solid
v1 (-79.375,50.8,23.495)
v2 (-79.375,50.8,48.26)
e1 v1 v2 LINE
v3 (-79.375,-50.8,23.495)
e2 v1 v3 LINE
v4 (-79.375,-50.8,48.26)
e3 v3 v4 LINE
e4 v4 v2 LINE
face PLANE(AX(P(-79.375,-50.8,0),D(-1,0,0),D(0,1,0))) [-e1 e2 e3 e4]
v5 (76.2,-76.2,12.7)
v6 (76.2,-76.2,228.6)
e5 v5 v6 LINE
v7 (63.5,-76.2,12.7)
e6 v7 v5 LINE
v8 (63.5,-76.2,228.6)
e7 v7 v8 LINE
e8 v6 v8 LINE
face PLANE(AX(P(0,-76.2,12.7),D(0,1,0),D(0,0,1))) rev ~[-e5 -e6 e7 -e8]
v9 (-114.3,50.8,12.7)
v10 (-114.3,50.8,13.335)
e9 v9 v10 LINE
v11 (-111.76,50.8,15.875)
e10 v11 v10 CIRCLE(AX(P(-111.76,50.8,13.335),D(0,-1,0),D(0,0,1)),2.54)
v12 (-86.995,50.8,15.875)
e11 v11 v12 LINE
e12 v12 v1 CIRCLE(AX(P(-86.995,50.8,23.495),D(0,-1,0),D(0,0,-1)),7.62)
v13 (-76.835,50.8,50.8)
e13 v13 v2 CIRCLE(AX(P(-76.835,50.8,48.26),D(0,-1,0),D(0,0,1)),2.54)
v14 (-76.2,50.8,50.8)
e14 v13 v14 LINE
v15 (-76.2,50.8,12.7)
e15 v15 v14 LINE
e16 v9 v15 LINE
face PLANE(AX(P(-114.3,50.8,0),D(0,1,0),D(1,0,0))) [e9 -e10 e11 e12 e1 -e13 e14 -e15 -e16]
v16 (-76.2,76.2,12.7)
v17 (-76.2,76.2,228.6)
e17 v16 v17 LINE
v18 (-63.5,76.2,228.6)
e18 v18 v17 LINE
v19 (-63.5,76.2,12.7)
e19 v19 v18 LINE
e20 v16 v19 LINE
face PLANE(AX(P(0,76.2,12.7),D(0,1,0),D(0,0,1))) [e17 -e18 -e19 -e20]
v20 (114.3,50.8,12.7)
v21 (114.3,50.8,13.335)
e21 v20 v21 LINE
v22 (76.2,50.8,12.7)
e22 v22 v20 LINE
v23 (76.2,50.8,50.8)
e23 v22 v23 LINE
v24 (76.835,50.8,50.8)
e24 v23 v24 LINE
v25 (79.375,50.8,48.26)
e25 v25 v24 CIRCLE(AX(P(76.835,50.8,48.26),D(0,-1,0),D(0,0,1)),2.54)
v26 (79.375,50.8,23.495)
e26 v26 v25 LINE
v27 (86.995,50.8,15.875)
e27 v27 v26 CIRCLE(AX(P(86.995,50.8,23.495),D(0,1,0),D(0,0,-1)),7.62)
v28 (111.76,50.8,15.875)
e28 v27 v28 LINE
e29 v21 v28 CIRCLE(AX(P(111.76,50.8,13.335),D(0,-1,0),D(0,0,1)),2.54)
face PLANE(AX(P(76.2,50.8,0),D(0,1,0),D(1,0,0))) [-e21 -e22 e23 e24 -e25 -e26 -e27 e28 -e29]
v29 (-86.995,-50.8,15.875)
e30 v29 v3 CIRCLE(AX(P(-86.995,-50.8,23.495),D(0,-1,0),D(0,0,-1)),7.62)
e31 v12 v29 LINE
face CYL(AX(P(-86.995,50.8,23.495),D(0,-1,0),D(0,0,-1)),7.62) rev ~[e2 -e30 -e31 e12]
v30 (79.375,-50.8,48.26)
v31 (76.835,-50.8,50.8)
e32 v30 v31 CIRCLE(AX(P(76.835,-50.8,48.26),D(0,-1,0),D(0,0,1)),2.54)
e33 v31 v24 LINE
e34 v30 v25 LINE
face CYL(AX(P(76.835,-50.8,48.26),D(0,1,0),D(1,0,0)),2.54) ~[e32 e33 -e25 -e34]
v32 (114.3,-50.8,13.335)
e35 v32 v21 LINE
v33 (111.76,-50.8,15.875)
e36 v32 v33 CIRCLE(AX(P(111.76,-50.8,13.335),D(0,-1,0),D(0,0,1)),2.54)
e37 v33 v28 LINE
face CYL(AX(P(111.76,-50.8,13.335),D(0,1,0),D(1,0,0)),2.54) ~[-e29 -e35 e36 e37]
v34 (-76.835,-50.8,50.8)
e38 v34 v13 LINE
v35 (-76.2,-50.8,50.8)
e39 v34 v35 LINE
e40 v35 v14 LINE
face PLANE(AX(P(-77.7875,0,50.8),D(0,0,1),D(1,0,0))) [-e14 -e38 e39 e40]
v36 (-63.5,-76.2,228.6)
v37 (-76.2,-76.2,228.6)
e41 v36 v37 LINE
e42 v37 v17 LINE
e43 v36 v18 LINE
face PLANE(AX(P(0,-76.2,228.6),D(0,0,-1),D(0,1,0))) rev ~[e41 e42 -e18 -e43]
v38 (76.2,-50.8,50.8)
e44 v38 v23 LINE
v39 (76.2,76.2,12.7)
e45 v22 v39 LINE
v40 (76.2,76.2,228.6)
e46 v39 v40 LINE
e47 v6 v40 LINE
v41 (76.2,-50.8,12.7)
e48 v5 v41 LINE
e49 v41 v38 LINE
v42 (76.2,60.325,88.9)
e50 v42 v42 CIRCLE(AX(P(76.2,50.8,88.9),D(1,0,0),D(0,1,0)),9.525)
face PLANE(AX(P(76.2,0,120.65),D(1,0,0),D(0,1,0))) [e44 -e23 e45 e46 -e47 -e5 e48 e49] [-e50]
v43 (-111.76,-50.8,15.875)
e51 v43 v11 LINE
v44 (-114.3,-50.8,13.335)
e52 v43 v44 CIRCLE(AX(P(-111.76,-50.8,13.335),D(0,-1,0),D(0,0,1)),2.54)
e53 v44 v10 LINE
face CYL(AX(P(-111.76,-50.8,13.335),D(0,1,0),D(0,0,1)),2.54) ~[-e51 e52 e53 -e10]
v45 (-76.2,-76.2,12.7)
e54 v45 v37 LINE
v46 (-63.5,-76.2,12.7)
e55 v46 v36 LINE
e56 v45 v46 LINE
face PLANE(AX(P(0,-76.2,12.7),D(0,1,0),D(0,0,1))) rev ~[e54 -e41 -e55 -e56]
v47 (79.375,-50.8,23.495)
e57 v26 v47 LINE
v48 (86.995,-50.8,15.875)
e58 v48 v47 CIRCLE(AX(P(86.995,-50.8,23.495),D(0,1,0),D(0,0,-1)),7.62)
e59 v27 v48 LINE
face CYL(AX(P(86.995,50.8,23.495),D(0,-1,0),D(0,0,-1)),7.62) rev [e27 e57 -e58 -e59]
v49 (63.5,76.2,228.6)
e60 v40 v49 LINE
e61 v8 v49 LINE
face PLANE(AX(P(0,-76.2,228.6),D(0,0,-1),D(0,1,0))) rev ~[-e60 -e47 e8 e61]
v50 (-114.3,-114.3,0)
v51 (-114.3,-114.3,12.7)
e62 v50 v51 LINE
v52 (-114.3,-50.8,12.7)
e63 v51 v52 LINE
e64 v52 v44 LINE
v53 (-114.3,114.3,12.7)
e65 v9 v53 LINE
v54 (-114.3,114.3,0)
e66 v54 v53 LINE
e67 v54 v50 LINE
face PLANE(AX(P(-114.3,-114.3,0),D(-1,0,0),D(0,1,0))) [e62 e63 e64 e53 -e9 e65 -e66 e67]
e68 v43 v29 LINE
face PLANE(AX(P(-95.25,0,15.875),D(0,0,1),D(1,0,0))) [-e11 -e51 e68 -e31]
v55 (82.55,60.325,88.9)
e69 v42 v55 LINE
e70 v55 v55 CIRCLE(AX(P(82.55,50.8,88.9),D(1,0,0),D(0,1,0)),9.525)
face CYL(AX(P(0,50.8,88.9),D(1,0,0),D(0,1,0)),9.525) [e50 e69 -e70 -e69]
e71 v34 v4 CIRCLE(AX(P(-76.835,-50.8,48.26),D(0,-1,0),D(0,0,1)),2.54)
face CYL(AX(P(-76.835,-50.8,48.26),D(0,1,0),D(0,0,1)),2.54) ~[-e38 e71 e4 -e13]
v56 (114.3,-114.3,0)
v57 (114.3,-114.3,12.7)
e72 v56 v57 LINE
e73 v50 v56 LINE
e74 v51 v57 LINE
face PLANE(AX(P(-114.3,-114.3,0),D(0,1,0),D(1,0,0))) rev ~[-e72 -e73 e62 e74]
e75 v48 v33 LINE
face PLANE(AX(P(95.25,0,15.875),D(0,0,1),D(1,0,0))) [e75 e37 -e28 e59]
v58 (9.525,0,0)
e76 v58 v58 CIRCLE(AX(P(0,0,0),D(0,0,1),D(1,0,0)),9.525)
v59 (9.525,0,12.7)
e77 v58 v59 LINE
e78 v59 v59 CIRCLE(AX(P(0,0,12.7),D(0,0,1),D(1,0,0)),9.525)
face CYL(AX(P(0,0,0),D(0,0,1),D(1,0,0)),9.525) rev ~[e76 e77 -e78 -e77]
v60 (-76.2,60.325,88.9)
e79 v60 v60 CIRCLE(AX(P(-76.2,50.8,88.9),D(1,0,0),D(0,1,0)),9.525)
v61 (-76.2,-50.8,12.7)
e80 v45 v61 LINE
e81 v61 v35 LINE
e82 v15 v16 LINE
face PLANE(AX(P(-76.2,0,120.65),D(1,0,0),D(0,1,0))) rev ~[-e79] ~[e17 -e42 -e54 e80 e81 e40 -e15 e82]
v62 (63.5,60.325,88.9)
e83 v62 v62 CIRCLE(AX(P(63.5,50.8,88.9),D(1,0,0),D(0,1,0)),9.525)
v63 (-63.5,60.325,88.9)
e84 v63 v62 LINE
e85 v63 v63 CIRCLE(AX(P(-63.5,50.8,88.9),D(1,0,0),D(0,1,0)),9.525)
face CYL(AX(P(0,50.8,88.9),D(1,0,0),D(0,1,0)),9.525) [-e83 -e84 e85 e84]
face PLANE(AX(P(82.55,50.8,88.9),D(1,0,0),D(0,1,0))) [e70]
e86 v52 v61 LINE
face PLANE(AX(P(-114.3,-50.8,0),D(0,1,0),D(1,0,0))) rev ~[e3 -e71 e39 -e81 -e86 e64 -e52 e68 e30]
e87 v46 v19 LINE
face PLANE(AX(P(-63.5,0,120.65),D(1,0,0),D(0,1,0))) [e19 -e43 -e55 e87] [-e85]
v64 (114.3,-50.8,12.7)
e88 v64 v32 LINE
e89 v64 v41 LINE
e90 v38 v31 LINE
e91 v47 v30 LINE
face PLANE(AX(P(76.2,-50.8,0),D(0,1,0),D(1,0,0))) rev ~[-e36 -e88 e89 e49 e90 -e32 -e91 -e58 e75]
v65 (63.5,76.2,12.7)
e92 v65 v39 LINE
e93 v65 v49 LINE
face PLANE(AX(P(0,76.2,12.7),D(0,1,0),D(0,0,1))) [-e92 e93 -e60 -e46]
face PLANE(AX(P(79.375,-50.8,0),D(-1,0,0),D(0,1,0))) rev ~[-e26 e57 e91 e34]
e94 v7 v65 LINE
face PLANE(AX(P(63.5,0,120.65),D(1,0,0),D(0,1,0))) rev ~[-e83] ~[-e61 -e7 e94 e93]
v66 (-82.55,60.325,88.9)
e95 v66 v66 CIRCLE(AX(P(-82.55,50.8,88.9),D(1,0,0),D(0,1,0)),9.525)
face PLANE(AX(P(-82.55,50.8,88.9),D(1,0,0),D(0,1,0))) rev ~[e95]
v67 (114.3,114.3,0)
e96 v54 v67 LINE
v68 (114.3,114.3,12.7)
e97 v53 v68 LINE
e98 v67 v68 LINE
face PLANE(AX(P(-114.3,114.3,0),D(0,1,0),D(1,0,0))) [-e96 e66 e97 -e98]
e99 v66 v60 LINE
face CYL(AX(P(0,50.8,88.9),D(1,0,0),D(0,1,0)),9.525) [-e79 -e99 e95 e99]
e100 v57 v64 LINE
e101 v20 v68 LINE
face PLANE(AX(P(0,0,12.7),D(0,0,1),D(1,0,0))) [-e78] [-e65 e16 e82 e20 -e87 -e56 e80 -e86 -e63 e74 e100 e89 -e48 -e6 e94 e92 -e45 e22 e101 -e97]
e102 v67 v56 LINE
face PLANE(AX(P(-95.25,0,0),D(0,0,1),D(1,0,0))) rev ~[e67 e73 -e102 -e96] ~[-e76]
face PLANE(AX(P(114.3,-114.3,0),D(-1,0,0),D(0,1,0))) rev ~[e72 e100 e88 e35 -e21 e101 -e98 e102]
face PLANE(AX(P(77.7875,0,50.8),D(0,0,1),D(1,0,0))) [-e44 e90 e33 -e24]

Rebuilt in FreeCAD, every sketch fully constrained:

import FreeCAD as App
import Part
import Sketcher
Q = App.Units.Quantity


def edges_at(feature, points):
    """Names of the edges that pass closest to the given points."""
    edges = feature.Shape.Edges
    near = lambda p: min(range(len(edges)), key=lambda i: edges[i].distToShape(Part.Vertex(*p))[0])
    return sorted({f"Edge{near(p) + 1}" for p in points})


def add_polygon(sketch, points):
    """Adds a closed chain of lines whose ends are joined by coincident constraints."""
    first, n = sketch.GeometryCount, len(points)
    for a, b in zip(points, points[1:] + points[:1]):
        sketch.addGeometry(Part.LineSegment(App.Vector(*a, 0), App.Vector(*b, 0)), False)
    for i in range(n):
        sketch.addConstraint(Sketcher.Constraint("Coincident", first + i, 2, first + (i + 1) % n, 1))

doc = App.newDocument("Part")
params = doc.addObject("Spreadsheet::Sheet", "Params")
for row, (alias, value) in enumerate([
    ("sketch1_width", "9 in"),
    ("pad1_length", "0.5 in"),
    ("sketch2_width", "6 in"),
    ("sketch2_height", "8.5 in"),
    ("pad2_length", "6 in"),
    ("sketch3_width", "6 in"),
    ("sketch3_height", "8.5 in"),
    ("pocket1_length", "5 in"),
    ("sketch4_diameter", "0.75 in"),
    ("pocket2_length", "1 in"),
    ("sketch5_diameter", "0.75 in"),
    ("pad3_length", "6.5 in"),
    ("sketch6_height", "4 in"),
    ("sketch6_width", "1.5 in"),
    ("pad4_length", "0.625 in"),
    ("sketch7_height", "4 in"),
    ("sketch7_width", "0.125 in"),
    ("pad5_length", "2 in"),
    ("fillet_radius", "0.1 in"),
    ("fillet2_radius", "0.3 in"),
], start=1):
    params.set(f"A{row}", alias)
    params.set(f"B{row}", "=" + value)
    params.setAlias(f"B{row}", alias)

body = doc.addObject("PartDesign::Body", "Body")

sketch1 = doc.addObject("Sketcher::SketchObject", "Sketch")
body.addObject(sketch1)
sketch1.AttachmentSupport = (doc.XY_Plane, [""])
sketch1.MapMode = "FlatFace"
add_polygon(sketch1, [(-114, 114), (-114, -114), (114, -114), (114, 114)])
sketch1.addConstraint([
    Sketcher.Constraint("Vertical", 0),
    Sketcher.Constraint("Horizontal", 1),
    Sketcher.Constraint("Vertical", 2),
    Sketcher.Constraint("Horizontal", 3),
    Sketcher.Constraint("Symmetric", 0, 2, 2, 2, -1, 1),
    Sketcher.Constraint("Equal", 3, 0),
    Sketcher.Constraint("DistanceX", 1, 1, 1, 2, Q("9 in")),
])
sketch1.setExpression("Constraints[10]", "Params.sketch1_width")
pad1 = doc.addObject("PartDesign::Pad", "Pad")
body.addObject(pad1)
pad1.Profile = sketch1
pad1.setExpression("Length", "Params.pad1_length")

sketch2 = doc.addObject("Sketcher::SketchObject", "Sketch001")
body.addObject(sketch2)
sketch2.AttachmentSupport = (doc.YZ_Plane, [""])
sketch2.MapMode = "FlatFace"
add_polygon(sketch2, [(-76, 229), (-76, 13), (76, 13), (76, 229)])
sketch2.addConstraint([
    Sketcher.Constraint("Vertical", 0),
    Sketcher.Constraint("Horizontal", 1),
    Sketcher.Constraint("Vertical", 2),
    Sketcher.Constraint("Horizontal", 3),
    Sketcher.Constraint("DistanceX", 1, 1, 1, 2, Q("6 in")),
    Sketcher.Constraint("DistanceY", 0, 2, 0, 1, Q("8.5 in")),
    Sketcher.Constraint("DistanceX", 0, 2, -1, 1, Q("3 in")),
    Sketcher.Constraint("DistanceY", -1, 1, 2, 2, Q("9 in")),
])
sketch2.setExpression("Constraints[8]", "Params.sketch2_width")
sketch2.setExpression("Constraints[9]", "Params.sketch2_height")
pad2 = doc.addObject("PartDesign::Pad", "Pad001")
body.addObject(pad2)
pad2.Profile = sketch2
pad2.setExpression("Length", "Params.pad2_length")
pad2.Midplane = True

sketch3 = doc.addObject("Sketcher::SketchObject", "Sketch002")
body.addObject(sketch3)
sketch3.AttachmentSupport = (doc.YZ_Plane, [""])
sketch3.MapMode = "FlatFace"
add_polygon(sketch3, [(-76, 229), (-76, 13), (76, 13), (76, 229)])
sketch3.addConstraint([
    Sketcher.Constraint("Vertical", 0),
    Sketcher.Constraint("Horizontal", 1),
    Sketcher.Constraint("Vertical", 2),
    Sketcher.Constraint("Horizontal", 3),
    Sketcher.Constraint("DistanceX", 1, 1, 1, 2, Q("6 in")),
    Sketcher.Constraint("DistanceY", 0, 2, 0, 1, Q("8.5 in")),
    Sketcher.Constraint("DistanceX", 0, 2, -1, 1, Q("3 in")),
    Sketcher.Constraint("DistanceY", -1, 1, 2, 2, Q("9 in")),
])
sketch3.setExpression("Constraints[8]", "Params.sketch3_width")
sketch3.setExpression("Constraints[9]", "Params.sketch3_height")
pocket1 = doc.addObject("PartDesign::Pocket", "Pocket")
body.addObject(pocket1)
pocket1.Profile = sketch3
pocket1.setExpression("Length", "Params.pocket1_length")
pocket1.Midplane = True

sketch4 = doc.addObject("Sketcher::SketchObject", "Sketch003")
body.addObject(sketch4)
sketch4.AttachmentSupport = (doc.XY_Plane, [""])
sketch4.MapMode = "FlatFace"
sketch4.addGeometry(Part.Circle(App.Vector(0, 0, 0), App.Vector(0, 0, 1), 10), False)
sketch4.addConstraint([
    Sketcher.Constraint("Coincident", 0, 3, -1, 1),
    Sketcher.Constraint("Diameter", 0, Q("0.75 in")),
])
sketch4.setExpression("Constraints[1]", "Params.sketch4_diameter")
pocket2 = doc.addObject("PartDesign::Pocket", "Pocket001")
body.addObject(pocket2)
pocket2.Profile = sketch4
pocket2.setExpression("Length", "Params.pocket2_length")
pocket2.Midplane = True

sketch5 = doc.addObject("Sketcher::SketchObject", "Sketch004")
body.addObject(sketch5)
sketch5.AttachmentSupport = (doc.YZ_Plane, [""])
sketch5.MapMode = "FlatFace"
sketch5.addGeometry(Part.Circle(App.Vector(51, 89, 0), App.Vector(0, 0, 1), 10), False)
sketch5.addConstraint([
    Sketcher.Constraint("Diameter", 0, Q("0.75 in")),
    Sketcher.Constraint("DistanceX", -1, 1, 0, 3, Q("2 in")),
    Sketcher.Constraint("DistanceY", -1, 1, 0, 3, Q("3.5 in")),
])
sketch5.setExpression("Constraints[0]", "Params.sketch5_diameter")
pad3 = doc.addObject("PartDesign::Pad", "Pad002")
body.addObject(pad3)
pad3.Profile = sketch5
pad3.setExpression("Length", "Params.pad3_length")
pad3.Midplane = True

sketch6 = doc.addObject("Sketcher::SketchObject", "Sketch005")
body.addObject(sketch6)
sketch6.AttachmentSupport = (doc.XY_Plane, [""])
sketch6.MapMode = "FlatFace"
add_polygon(sketch6, [(-114, 51), (-114, -51), (-76, -51), (-76, 51)])
add_polygon(sketch6, [(76, 51), (76, -51), (114, -51), (114, 51)])
sketch6.addConstraint([
    Sketcher.Constraint("Vertical", 0),
    Sketcher.Constraint("Horizontal", 1),
    Sketcher.Constraint("Vertical", 2),
    Sketcher.Constraint("Horizontal", 3),
    Sketcher.Constraint("Vertical", 4),
    Sketcher.Constraint("Horizontal", 5),
    Sketcher.Constraint("Vertical", 6),
    Sketcher.Constraint("Horizontal", 7),
    Sketcher.Constraint("Symmetric", 2, 2, 4, 2, -1, 1),
    Sketcher.Constraint("Symmetric", 0, 2, 6, 2, -1, 1),
    Sketcher.Constraint("Horizontal", 1, 2, 4, 2),
    Sketcher.Constraint("DistanceY", 0, 2, 0, 1, Q("4 in")),
    Sketcher.Constraint("DistanceX", 1, 1, 1, 2, Q("1.5 in")),
    Sketcher.Constraint("DistanceX", 1, 2, -1, 1, Q("3 in")),
])
sketch6.setExpression("Constraints[19]", "Params.sketch6_height")
sketch6.setExpression("Constraints[20]", "Params.sketch6_width")
pad4 = doc.addObject("PartDesign::Pad", "Pad003")
body.addObject(pad4)
pad4.Profile = sketch6
pad4.setExpression("Length", "Params.pad4_length")

sketch7 = doc.addObject("Sketcher::SketchObject", "Sketch006")
body.addObject(sketch7)
sketch7.AttachmentSupport = (doc.XY_Plane, [""])
sketch7.MapMode = "FlatFace"
add_polygon(sketch7, [(-79.4, 50.8), (-79.4, -50.8), (-76.2, -50.8), (-76.2, 50.8)])
add_polygon(sketch7, [(76.2, 50.8), (76.2, -50.8), (79.4, -50.8), (79.4, 50.8)])
sketch7.addConstraint([
    Sketcher.Constraint("Vertical", 0),
    Sketcher.Constraint("Horizontal", 1),
    Sketcher.Constraint("Vertical", 2),
    Sketcher.Constraint("Horizontal", 3),
    Sketcher.Constraint("Vertical", 4),
    Sketcher.Constraint("Horizontal", 5),
    Sketcher.Constraint("Vertical", 6),
    Sketcher.Constraint("Horizontal", 7),
    Sketcher.Constraint("Symmetric", 2, 2, 4, 2, -1, 1),
    Sketcher.Constraint("Symmetric", 0, 2, 6, 2, -1, 1),
    Sketcher.Constraint("Horizontal", 1, 2, 4, 2),
    Sketcher.Constraint("DistanceY", 0, 2, 0, 1, Q("4 in")),
    Sketcher.Constraint("DistanceX", 1, 2, -1, 1, Q("3 in")),
    Sketcher.Constraint("DistanceX", 1, 1, 1, 2, Q("0.125 in")),
])
sketch7.setExpression("Constraints[19]", "Params.sketch7_height")
sketch7.setExpression("Constraints[21]", "Params.sketch7_width")
pad5 = doc.addObject("PartDesign::Pad", "Pad004")
body.addObject(pad5)
pad5.Profile = sketch7
pad5.setExpression("Length", "Params.pad5_length")
doc.recompute()

fillet = doc.addObject("PartDesign::Fillet", "Fillet")
body.addObject(fillet)
fillet.Base = (pad5, edges_at(pad5, [
    (-114.3, 0, 15.875),
    (-79.375, 0, 50.8),
    (79.375, 0, 50.8),
    (114.3, 0, 15.875),
]))
fillet.setExpression("Radius", "Params.fillet_radius")
doc.recompute()

fillet2 = doc.addObject("PartDesign::Fillet", "Fillet001")
body.addObject(fillet2)
fillet2.Base = (fillet, edges_at(fillet, [(-79.375, 0, 15.875), (79.375, 0, 15.875)]))
fillet2.setExpression("Radius", "Params.fillet2_radius")

doc.recompute()
